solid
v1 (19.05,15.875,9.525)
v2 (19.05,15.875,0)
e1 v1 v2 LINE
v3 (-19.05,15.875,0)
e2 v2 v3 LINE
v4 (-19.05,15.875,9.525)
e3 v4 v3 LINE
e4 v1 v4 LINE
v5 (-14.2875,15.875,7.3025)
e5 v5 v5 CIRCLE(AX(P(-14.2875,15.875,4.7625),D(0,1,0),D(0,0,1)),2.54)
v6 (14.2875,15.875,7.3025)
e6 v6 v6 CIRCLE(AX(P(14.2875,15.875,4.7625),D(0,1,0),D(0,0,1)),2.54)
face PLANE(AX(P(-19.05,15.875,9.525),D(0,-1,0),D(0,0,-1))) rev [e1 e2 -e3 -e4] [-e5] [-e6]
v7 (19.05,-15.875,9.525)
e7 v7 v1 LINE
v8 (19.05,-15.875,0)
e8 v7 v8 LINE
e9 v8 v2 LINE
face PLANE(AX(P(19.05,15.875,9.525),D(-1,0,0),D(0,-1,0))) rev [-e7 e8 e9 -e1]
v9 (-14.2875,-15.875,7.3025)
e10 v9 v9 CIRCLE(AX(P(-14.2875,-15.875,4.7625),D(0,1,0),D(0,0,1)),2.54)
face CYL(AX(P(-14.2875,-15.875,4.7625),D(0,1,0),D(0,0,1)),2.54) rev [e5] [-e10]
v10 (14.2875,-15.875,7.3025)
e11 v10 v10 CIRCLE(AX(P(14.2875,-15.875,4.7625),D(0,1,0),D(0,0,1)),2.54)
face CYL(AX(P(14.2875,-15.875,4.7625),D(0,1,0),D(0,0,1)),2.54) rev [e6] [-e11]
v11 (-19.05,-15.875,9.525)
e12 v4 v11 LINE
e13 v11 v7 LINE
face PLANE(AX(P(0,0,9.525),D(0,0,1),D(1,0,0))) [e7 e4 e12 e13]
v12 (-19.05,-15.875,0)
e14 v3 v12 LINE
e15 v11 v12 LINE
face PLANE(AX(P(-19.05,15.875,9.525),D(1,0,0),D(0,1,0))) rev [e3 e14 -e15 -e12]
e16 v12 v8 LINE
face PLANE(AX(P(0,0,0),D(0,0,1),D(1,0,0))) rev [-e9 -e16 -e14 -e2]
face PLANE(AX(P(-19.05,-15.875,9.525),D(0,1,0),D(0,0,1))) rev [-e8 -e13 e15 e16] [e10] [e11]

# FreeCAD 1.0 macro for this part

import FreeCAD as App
import Part
import Sketcher
from FreeCAD import Vector
Q = App.Units.Quantity

doc = App.newDocument("Part")
body = doc.addObject("PartDesign::Body", "Body")

sketch1 = body.newObject("Sketcher::SketchObject", "Sketch")
sketch1.AttachmentSupport = (doc.getObject("XY_Plane"), [""])
sketch1.MapMode = "FlatFace"
sketch1.addGeometry([
    Part.LineSegment(Vector(-19, 16, 0), Vector(-19, -16, 0)),
    Part.LineSegment(Vector(-19, -16, 0), Vector(19, -16, 0)),
    Part.LineSegment(Vector(19, -16, 0), Vector(19, 16, 0)),
    Part.LineSegment(Vector(19, 16, 0), Vector(-19, 16, 0)),
], False)
sketch1.addConstraint([
    Sketcher.Constraint("Coincident", 0, 2, 1, 1),
    Sketcher.Constraint("Coincident", 1, 2, 2, 1),
    Sketcher.Constraint("Coincident", 2, 2, 3, 1),
    Sketcher.Constraint("Coincident", 3, 2, 0, 1),
    Sketcher.Constraint("Vertical", 0),
    Sketcher.Constraint("Horizontal", 1),
    Sketcher.Constraint("Vertical", 2),
    Sketcher.Constraint("Horizontal", 3),
    Sketcher.Constraint("Symmetric", 0, 2, 2, 2, -1, 1),
    Sketcher.Constraint("DistanceX", 1, 1, 1, 2, Q("1.5 in")),
    Sketcher.Constraint("DistanceY", 0, 2, 0, 1, Q("1.25 in")),
])
pad1 = body.newObject("PartDesign::Pad", "Pad")
pad1.Profile = sketch1
pad1.Length = Q("0.375 in")

sketch2 = body.newObject("Sketcher::SketchObject", "Sketch001")
sketch2.AttachmentSupport = (doc.getObject("XZ_Plane"), [""])
sketch2.MapMode = "FlatFace"
sketch2.AttachmentOffset = App.Placement(Vector(0, 0, -0.625 * 25.4), App.Rotation())
sketch2.addGeometry([
    Part.Circle(Vector(-14.3, 4.8, 0), Vector(0, 0, 1), 1.4),
    Part.Circle(Vector(14.3, 4.8, 0), Vector(0, 0, 1), 1.4),
], False)
sketch2.addConstraint([
    Sketcher.Constraint("Equal", 0, 1),
    Sketcher.Constraint("Symmetric", 0, 3, 1, 3, -2),
    Sketcher.Constraint("Diameter", 0, Q("0.1065 in")),
    Sketcher.Constraint("DistanceX", 0, 3, -1, 1, Q("0.5625 in")),
    Sketcher.Constraint("DistanceY", -1, 1, 0, 3, Q("0.1875 in")),
])
doc.recompute()
hole = body.newObject("PartDesign::Hole", "Hole")
hole.Profile = sketch2
hole.ThreadType = "None"
hole.Diameter = Q("0.1065 in")
hole.DepthType = "Dimension"
hole.Depth = Q("0.3 in")
hole.DrillPoint = "Angled"
hole.DrillPointAngle = 118
hole.Reversed = True

sketch3 = body.newObject("Sketcher::SketchObject", "Sketch002")
sketch3.AttachmentSupport = (doc.getObject("XZ_Plane"), [""])
sketch3.MapMode = "FlatFace"
sketch3.AttachmentOffset = App.Placement(Vector(0, 0, 0.625 * 25.4), App.Rotation())
sketch3.addGeometry([
    Part.Circle(Vector(14.3, 4.8, 0), Vector(0, 0, 1), 1.4),
    Part.Circle(Vector(-14.3, 4.8, 0), Vector(0, 0, 1), 1.4),
], False)
sketch3.addConstraint([
    Sketcher.Constraint("Equal", 0, 1),
    Sketcher.Constraint("Symmetric", 0, 3, 1, 3, -2),
    Sketcher.Constraint("Diameter", 0, Q("0.1065 in")),
    Sketcher.Constraint("DistanceX", -1, 1, 0, 3, Q("0.5625 in")),
    Sketcher.Constraint("DistanceY", -1, 1, 0, 3, Q("0.1875 in")),
])
doc.recompute()
hole2 = body.newObject("PartDesign::Hole", "Hole001")
hole2.Profile = sketch3
hole2.ThreadType = "None"
hole2.Diameter = Q("0.1065 in")
hole2.DepthType = "Dimension"
hole2.Depth = Q("0.3696 in")
hole2.DrillPoint = "Angled"
hole2.DrillPointAngle = 118

sketch4 = body.newObject("Sketcher::SketchObject", "Sketch003")
sketch4.AttachmentSupport = (doc.getObject("XZ_Plane"), [""])
sketch4.MapMode = "FlatFace"
sketch4.AttachmentOffset = App.Placement(Vector(0, 0, -0.625 * 25.4), App.Rotation())
sketch4.addGeometry([
    Part.Circle(Vector(-14.3, 4.8, 0), Vector(0, 0, 1), 2.5),
    Part.Circle(Vector(14.3, 4.8, 0), Vector(0, 0, 1), 2.5),
], False)
sketch4.addConstraint([
    Sketcher.Constraint("Equal", 0, 1),
    Sketcher.Constraint("Symmetric", 0, 3, 1, 3, -2),
    Sketcher.Constraint("Diameter", 0, Q("0.2 in")),
    Sketcher.Constraint("DistanceX", 0, 3, -1, 1, Q("0.5625 in")),
    Sketcher.Constraint("DistanceY", -1, 1, 0, 3, Q("0.1875 in")),
])
pocket1 = body.newObject("PartDesign::Pocket", "Pocket")
pocket1.Profile = sketch4
pocket1.Type = "ThroughAll"
pocket1.Reversed = True

doc.recompute()
